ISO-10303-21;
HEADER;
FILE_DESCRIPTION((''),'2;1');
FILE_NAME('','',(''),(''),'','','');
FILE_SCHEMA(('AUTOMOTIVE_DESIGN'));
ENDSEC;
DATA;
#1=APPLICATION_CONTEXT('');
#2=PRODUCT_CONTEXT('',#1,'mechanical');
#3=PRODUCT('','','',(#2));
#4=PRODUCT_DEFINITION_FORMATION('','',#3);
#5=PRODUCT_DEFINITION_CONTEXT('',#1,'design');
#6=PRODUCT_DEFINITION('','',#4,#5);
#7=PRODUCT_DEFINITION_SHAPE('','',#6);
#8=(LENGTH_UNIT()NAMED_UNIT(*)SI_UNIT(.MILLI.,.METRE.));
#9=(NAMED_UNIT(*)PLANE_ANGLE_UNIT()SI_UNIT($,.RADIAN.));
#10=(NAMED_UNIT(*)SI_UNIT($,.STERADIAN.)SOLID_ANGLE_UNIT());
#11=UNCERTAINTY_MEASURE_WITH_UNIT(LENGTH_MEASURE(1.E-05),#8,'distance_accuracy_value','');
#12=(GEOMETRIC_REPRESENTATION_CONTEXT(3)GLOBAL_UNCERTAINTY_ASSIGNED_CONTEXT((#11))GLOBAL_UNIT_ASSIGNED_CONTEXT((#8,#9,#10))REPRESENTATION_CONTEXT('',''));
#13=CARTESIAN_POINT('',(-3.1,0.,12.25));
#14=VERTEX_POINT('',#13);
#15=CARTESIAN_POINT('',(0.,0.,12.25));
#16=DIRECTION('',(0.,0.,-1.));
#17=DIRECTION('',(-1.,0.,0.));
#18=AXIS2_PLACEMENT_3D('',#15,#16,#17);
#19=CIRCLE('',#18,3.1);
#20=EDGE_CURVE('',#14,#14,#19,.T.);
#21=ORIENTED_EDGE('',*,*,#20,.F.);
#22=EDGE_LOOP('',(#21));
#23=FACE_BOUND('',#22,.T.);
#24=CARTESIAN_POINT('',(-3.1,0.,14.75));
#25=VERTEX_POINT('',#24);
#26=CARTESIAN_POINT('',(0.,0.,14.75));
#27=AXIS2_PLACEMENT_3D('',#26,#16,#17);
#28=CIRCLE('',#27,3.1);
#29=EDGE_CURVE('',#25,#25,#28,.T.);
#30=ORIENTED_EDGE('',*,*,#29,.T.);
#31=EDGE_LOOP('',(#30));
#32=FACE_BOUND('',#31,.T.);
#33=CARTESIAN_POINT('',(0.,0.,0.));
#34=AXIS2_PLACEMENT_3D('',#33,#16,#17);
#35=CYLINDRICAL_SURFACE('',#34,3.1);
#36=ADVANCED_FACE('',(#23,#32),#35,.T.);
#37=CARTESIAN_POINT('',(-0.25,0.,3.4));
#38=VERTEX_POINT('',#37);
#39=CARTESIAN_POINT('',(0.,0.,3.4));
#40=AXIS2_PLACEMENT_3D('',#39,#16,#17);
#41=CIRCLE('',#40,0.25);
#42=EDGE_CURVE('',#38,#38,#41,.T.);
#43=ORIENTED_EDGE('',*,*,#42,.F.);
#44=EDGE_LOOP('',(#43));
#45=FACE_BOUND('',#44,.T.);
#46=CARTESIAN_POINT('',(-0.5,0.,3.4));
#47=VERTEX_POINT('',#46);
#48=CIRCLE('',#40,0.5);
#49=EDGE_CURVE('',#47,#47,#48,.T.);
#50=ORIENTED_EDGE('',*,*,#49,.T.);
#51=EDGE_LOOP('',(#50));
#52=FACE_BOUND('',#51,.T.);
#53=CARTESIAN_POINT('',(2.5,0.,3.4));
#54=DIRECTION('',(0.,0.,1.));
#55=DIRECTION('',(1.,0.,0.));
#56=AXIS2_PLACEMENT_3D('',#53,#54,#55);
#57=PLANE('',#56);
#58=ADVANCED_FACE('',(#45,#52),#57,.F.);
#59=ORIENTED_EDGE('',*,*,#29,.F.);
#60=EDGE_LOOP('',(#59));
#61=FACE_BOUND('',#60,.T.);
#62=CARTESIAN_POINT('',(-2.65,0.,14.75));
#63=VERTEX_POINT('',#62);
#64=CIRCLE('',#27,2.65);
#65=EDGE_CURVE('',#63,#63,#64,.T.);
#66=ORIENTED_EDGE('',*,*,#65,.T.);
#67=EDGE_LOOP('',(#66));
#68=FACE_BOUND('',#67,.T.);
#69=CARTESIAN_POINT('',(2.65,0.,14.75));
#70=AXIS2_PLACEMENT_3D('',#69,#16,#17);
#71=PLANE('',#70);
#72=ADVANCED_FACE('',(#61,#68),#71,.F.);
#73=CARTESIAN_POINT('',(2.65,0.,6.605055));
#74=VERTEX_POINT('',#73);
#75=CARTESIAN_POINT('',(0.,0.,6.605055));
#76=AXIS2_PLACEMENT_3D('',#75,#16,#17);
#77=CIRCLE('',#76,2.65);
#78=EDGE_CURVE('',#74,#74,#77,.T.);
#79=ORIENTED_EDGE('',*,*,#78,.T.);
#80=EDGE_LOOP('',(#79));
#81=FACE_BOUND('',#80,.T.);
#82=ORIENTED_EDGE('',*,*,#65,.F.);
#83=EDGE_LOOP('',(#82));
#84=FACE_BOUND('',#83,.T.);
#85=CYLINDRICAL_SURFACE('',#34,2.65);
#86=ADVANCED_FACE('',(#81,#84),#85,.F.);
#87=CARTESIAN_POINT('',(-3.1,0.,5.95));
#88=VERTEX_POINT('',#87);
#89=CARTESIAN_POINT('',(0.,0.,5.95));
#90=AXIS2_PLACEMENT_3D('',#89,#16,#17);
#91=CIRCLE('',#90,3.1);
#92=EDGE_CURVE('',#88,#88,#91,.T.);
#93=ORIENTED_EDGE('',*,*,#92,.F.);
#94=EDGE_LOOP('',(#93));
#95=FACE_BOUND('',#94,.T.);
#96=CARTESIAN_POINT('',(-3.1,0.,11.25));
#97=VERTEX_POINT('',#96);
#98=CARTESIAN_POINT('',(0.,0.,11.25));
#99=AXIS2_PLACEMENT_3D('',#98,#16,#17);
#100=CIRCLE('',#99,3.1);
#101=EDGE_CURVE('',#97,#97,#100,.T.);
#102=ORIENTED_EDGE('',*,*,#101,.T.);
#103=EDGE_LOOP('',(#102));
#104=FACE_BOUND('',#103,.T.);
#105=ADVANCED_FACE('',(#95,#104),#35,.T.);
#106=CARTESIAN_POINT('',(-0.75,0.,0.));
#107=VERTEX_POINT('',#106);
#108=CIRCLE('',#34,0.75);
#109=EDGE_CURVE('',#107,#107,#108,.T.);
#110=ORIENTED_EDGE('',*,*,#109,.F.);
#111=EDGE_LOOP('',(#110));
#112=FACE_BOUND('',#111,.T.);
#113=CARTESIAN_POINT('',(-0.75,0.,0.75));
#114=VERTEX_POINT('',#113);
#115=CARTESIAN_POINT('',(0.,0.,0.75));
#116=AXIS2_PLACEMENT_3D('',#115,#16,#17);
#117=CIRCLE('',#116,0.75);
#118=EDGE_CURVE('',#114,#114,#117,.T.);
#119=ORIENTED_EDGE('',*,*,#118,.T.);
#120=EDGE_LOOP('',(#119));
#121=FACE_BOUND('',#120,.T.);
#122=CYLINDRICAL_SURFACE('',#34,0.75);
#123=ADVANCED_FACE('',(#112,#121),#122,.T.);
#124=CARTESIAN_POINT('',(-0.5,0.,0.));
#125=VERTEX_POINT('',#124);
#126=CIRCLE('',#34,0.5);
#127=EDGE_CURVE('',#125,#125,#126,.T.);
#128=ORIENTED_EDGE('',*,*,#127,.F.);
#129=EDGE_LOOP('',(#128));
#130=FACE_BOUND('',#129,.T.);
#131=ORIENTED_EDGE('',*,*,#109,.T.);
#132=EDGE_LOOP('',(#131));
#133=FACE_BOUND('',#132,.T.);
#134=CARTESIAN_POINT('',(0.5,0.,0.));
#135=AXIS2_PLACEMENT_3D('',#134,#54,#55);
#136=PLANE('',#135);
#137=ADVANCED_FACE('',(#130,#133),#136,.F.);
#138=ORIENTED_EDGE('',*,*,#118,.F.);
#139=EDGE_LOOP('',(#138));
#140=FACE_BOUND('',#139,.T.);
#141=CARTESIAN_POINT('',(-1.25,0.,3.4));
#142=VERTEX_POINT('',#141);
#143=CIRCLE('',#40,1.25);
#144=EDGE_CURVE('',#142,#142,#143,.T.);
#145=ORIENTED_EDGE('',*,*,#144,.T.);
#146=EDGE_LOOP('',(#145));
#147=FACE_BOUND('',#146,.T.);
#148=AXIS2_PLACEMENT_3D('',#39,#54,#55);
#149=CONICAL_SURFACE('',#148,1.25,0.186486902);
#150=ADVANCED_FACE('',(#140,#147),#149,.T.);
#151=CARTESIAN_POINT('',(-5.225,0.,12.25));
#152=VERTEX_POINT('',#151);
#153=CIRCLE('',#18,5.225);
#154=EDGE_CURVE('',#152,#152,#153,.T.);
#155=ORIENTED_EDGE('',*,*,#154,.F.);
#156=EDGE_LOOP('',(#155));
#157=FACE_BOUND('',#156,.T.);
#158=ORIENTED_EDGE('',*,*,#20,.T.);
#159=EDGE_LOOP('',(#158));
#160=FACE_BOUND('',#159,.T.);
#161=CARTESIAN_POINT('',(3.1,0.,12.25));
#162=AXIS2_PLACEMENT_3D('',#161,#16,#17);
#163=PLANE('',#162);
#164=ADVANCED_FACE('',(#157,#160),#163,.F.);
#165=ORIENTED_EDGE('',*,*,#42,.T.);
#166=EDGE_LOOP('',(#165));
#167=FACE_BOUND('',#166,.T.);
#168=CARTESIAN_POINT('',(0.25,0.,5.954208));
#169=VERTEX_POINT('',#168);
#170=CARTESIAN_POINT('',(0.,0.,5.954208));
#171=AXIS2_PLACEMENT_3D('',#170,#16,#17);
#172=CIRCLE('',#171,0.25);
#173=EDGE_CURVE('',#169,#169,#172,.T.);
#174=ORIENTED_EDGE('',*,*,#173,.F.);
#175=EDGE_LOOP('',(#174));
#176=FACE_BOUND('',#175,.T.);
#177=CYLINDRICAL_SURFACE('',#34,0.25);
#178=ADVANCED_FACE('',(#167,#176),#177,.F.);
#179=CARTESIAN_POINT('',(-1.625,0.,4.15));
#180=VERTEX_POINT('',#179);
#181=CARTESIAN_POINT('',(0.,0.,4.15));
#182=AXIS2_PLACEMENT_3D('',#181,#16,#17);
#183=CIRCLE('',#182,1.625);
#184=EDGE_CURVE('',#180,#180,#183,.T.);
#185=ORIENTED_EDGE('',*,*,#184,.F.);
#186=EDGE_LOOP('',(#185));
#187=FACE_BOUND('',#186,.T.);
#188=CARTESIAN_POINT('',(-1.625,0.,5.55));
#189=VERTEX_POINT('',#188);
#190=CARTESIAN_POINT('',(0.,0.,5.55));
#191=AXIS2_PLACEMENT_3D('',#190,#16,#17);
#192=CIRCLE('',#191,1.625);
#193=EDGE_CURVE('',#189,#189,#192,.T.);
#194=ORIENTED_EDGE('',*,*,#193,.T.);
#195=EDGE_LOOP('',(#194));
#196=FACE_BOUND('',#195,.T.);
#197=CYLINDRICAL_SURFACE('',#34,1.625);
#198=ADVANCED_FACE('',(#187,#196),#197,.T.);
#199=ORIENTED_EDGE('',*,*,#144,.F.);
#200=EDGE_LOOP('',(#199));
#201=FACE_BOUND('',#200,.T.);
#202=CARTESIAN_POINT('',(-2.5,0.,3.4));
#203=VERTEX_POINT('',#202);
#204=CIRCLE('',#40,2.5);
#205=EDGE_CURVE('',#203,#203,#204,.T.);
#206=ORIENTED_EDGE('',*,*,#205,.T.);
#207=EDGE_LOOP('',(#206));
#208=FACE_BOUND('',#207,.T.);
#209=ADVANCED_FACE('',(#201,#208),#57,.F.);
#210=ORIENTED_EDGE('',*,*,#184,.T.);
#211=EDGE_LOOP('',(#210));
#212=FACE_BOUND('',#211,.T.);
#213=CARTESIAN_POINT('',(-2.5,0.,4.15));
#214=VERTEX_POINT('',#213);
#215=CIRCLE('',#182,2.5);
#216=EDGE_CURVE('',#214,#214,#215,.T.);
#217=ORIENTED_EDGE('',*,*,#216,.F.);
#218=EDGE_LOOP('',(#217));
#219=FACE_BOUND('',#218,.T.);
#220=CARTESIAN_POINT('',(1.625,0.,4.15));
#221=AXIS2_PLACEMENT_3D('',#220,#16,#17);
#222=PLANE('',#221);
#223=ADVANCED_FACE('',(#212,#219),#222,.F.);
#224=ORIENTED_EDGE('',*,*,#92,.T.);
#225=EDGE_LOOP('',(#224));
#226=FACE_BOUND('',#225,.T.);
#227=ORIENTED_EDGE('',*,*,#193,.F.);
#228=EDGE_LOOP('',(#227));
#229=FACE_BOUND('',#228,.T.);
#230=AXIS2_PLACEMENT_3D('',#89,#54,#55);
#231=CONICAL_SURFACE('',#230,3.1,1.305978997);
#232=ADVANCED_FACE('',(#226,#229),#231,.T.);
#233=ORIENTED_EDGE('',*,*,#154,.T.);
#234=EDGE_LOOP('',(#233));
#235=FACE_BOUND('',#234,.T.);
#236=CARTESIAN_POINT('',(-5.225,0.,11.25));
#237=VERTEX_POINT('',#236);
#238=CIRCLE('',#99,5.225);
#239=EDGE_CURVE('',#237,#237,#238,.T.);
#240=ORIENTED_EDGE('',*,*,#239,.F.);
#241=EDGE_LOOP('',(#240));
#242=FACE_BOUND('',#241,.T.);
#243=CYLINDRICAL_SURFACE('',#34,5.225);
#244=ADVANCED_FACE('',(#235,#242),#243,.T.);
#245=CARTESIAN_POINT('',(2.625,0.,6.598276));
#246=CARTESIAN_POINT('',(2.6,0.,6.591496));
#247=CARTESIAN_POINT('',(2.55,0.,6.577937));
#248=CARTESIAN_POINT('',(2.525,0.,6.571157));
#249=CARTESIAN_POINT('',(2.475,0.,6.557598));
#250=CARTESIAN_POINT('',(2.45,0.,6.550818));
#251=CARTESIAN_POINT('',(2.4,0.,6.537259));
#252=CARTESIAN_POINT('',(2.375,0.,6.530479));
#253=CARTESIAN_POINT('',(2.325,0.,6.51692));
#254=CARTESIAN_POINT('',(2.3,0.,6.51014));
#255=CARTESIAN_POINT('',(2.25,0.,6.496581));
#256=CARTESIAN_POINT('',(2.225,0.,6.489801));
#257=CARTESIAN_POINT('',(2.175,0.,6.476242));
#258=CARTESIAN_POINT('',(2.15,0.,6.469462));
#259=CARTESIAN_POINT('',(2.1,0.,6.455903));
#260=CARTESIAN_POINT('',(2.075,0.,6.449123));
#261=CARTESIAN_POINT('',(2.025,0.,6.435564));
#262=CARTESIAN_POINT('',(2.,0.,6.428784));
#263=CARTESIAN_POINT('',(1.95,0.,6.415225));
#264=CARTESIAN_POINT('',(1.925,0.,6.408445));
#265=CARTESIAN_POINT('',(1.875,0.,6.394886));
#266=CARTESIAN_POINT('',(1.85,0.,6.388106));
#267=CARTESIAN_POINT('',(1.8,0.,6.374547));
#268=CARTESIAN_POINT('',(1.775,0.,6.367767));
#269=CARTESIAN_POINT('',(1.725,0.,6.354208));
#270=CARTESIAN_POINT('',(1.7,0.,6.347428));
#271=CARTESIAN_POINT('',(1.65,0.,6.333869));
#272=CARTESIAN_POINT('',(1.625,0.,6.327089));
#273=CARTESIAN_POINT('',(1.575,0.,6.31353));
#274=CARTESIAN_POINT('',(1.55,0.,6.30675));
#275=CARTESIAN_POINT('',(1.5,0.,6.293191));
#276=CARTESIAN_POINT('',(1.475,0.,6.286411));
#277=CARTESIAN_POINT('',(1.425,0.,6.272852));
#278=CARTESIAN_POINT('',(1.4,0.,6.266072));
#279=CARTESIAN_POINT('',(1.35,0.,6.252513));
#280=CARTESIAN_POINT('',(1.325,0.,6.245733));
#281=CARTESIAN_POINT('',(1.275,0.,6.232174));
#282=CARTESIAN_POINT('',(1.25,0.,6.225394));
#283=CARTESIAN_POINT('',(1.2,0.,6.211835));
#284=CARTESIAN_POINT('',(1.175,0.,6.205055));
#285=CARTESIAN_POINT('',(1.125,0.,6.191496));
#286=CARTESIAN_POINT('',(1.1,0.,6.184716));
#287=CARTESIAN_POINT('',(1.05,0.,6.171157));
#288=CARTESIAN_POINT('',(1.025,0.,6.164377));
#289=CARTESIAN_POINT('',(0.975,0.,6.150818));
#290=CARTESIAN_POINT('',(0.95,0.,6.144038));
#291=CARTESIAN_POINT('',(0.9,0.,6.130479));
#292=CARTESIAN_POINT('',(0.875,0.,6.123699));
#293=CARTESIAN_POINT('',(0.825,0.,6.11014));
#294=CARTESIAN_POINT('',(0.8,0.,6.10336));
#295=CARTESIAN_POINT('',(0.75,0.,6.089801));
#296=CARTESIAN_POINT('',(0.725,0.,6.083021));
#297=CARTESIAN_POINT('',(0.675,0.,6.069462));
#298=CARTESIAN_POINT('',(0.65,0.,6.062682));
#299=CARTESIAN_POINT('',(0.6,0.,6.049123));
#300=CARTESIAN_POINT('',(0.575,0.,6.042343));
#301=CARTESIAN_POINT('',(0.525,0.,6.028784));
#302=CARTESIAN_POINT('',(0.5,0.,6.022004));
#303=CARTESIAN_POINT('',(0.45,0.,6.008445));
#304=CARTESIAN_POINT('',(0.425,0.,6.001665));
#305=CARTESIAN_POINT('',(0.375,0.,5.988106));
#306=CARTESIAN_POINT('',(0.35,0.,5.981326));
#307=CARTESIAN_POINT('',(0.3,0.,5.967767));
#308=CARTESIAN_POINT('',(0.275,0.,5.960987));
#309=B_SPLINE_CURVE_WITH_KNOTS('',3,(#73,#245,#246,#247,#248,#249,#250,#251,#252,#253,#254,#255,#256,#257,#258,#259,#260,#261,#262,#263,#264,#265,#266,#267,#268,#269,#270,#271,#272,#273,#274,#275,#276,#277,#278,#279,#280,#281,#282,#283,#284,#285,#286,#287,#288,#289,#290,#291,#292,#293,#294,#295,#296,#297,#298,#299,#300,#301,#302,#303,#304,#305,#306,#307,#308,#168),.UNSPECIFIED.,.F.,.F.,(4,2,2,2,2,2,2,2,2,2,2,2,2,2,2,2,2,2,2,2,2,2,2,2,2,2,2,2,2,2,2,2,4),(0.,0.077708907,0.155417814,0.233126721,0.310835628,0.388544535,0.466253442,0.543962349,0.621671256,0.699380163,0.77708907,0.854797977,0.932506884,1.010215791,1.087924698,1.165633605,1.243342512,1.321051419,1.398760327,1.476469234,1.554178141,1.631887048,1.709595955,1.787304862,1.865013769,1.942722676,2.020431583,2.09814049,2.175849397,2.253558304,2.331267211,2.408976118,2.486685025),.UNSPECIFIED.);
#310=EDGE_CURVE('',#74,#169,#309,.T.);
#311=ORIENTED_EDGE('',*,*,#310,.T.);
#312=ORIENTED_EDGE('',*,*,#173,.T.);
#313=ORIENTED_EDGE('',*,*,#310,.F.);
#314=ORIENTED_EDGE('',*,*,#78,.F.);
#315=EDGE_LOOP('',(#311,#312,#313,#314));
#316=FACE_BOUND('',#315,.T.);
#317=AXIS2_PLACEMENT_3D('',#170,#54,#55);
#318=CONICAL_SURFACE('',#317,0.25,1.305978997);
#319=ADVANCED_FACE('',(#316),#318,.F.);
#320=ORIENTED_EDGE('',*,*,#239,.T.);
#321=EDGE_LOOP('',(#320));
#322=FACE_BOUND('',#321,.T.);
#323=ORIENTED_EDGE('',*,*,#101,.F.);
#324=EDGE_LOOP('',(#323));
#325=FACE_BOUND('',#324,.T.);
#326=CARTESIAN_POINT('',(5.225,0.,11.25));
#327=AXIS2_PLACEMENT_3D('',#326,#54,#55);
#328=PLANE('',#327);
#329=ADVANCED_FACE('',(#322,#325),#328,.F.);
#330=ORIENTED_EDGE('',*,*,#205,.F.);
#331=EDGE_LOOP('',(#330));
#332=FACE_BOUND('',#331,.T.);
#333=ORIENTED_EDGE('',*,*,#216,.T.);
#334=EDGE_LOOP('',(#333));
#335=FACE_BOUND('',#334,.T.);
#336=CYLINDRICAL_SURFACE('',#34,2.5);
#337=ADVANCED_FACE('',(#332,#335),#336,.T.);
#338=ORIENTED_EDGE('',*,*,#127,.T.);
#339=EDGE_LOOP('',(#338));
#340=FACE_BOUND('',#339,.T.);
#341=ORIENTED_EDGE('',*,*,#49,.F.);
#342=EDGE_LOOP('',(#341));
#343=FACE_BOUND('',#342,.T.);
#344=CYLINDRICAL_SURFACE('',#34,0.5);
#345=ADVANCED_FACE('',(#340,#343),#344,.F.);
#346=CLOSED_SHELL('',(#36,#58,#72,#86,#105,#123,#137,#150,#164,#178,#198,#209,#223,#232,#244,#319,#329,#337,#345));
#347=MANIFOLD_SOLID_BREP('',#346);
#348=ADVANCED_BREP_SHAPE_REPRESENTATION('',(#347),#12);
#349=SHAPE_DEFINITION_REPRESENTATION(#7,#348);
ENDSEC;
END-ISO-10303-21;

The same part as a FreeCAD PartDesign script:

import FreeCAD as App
import Part
import Sketcher
Q = App.Units.Quantity


def add_polygon(sketch, points):
    """Adds a closed chain of lines whose ends are joined by coincident constraints."""
    first, n = sketch.GeometryCount, len(points)
    for a, b in zip(points, points[1:] + points[:1]):
        sketch.addGeometry(Part.LineSegment(App.Vector(*a, 0), App.Vector(*b, 0)), False)
    for i in range(n):
        sketch.addConstraint(Sketcher.Constraint("Coincident", first + i, 2, first + (i + 1) % n, 1))

doc = App.newDocument("Part")
body = doc.addObject("PartDesign::Body", "Body")

sketch1 = body.newObject("Sketcher::SketchObject", "Sketch")
sketch1.AttachmentSupport = (doc.getObject("XZ_Plane"), [""])
sketch1.MapMode = "FlatFace"
add_polygon(sketch1, [(2.65, 14.75), (3.1, 14.75), (3.1, 12.25), (5.22, 12.25), (5.22, 11.25), (3.1, 11.25), (3.1, 5.95), (1.62, 5.55), (1.62, 4.15), (2.5, 4.15), (2.5, 3.4), (0.25, 3.4), (0.25, 5.95), (2.65, 6.61)])
sketch1.addConstraint([
    Sketcher.Constraint("Horizontal", 0),
    Sketcher.Constraint("Vertical", 1),
    Sketcher.Constraint("Horizontal", 2),
    Sketcher.Constraint("Vertical", 3),
    Sketcher.Constraint("Horizontal", 4),
    Sketcher.Constraint("Vertical", 5),
    Sketcher.Constraint("Vertical", 7),
    Sketcher.Constraint("Horizontal", 8),
    Sketcher.Constraint("Vertical", 9),
    Sketcher.Constraint("Horizontal", 10),
    Sketcher.Constraint("Vertical", 11),
    Sketcher.Constraint("Vertical", 13),
    Sketcher.Constraint("Parallel", 6, 12),
    Sketcher.Constraint("Vertical", 1, 2, 4, 2),
    Sketcher.Constraint("DistanceY", 3, 2, 3, 1, Q("1 mm")),
    Sketcher.Constraint("DistanceY", 1, 2, 1, 1, Q("2.5 mm")),
    Sketcher.Constraint("DistanceY", 5, 2, 5, 1, Q("5.3 mm")),
    Sketcher.Constraint("DistanceY", 7, 2, 7, 1, Q("1.4 mm")),
    Sketcher.Constraint("DistanceX", 0, 1, 0, 2, Q("0.45 mm")),
    Sketcher.Constraint("DistanceX", 10, 2, 10, 1, Q("2.25 mm")),
    Sketcher.Constraint("DistanceY", 9, 2, 9, 1, Q("0.75 mm")),
    Sketcher.Constraint("DistanceX", -1, 1, 0, 2, Q("3.1 mm")),
    Sketcher.Constraint("DistanceX", -1, 1, 8, 2, Q("2.5 mm")),
    Sketcher.Constraint("DistanceY", -1, 1, 9, 2, Q("3.4 mm")),
    Sketcher.Constraint("DistanceY", 6, 2, 5, 2, Q("0.4 mm")),
    Sketcher.Constraint("DistanceX", 6, 2, 3, 2, Q("3.6 mm")),
    Sketcher.Constraint("DistanceX", 2, 1, 2, 2, Q("2.125 mm")),
    Sketcher.Constraint("DistanceY", 11, 1, 11, 2, Q("2.554208 mm")),
])
revolution = body.newObject("PartDesign::Revolution", "Revolution")
revolution.Profile = sketch1
revolution.ReferenceAxis = (sketch1, ["V_Axis"])
revolution.Angle = 360

sketch2 = body.newObject("Sketcher::SketchObject", "Sketch001")
sketch2.AttachmentSupport = (doc.getObject("XZ_Plane"), [""])
sketch2.MapMode = "FlatFace"
add_polygon(sketch2, [(0.75, 0), (0.5, 0), (0.5, 3.4), (1.25, 3.4), (0.75, 0.75)])
sketch2.addConstraint([
    Sketcher.Constraint("Horizontal", 0),
    Sketcher.Constraint("Vertical", 1),
    Sketcher.Constraint("Horizontal", 2),
    Sketcher.Constraint("Vertical", 4),
    Sketcher.Constraint("PointOnObject", 0, 2, -1),
    Sketcher.Constraint("Equal", 2, 4),
    Sketcher.Constraint("DistanceY", 1, 1, 1, 2, Q("3.4 mm")),
    Sketcher.Constraint("DistanceX", 0, 2, 0, 1, Q("0.25 mm")),
    Sketcher.Constraint("DistanceX", 2, 1, 2, 2, Q("0.75 mm")),
    Sketcher.Constraint("DistanceX", -1, 1, 0, 2, Q("0.5 mm")),
])
revolution2 = body.newObject("PartDesign::Revolution", "Revolution001")
revolution2.Profile = sketch2
revolution2.ReferenceAxis = (sketch2, ["V_Axis"])
revolution2.Angle = 360

doc.recompute()
